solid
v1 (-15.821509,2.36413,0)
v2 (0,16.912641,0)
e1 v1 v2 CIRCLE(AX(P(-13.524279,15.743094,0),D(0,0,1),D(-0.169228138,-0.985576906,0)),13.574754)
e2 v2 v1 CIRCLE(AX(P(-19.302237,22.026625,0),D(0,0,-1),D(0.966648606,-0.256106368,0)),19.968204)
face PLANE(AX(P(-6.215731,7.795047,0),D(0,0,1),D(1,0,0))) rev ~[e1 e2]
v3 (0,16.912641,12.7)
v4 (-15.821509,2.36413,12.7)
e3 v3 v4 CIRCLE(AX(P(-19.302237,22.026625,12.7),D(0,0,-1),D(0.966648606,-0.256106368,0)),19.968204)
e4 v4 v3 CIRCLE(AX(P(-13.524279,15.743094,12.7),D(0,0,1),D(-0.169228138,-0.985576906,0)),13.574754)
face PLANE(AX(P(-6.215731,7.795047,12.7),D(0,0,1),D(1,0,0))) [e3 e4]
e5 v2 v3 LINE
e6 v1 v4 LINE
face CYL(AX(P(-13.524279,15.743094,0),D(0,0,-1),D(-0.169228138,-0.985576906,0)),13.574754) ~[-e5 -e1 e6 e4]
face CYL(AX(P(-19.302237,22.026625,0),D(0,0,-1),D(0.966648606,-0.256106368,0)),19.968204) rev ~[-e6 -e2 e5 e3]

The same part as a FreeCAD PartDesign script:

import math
import FreeCAD as App
import Part
import Sketcher

V = App.Vector
Q = App.Units.Quantity

doc = App.newDocument("Part")
params = doc.addObject("Spreadsheet::Sheet", "Params")
for row, (alias, value) in enumerate([
    ("pad1_length", "0.5 in"),
], start=1):
    params.set(f"A{row}", alias)
    params.set(f"B{row}", "=" + value)
    params.setAlias(f"B{row}", alias)

body = doc.addObject("PartDesign::Body", "Body")

# Sketch on XY plane
sketch1 = body.newObject("Sketcher::SketchObject", "Sketch")
sketch1.AttachmentSupport = (doc.getObject("XY_Plane"), [""])
sketch1.MapMode = "FlatFace"
sketch1.addGeometry([
    Part.ArcOfCircle(Part.Circle(V(-19, 22, 0), V(0, 0, 1), 20), math.radians(-80), math.radians(-15)),
    Part.ArcOfCircle(Part.Circle(V(-14, 16, 0), V(0, 0, 1), 14), math.radians(-100), math.radians(5)),
], False)
sketch1.addConstraint([
    Sketcher.Constraint("Coincident", 0, 1, 1, 1),
    Sketcher.Constraint("Coincident", 1, 2, 0, 2),
    Sketcher.Constraint("PointOnObject", 1, 2, -2),
    Sketcher.Constraint("Radius", 0, Q("19.968204 mm")),
    Sketcher.Constraint("Radius", 1, Q("13.574754 mm")),
    Sketcher.Constraint("DistanceX", 1, 3, -1, 1, Q("13.524279 mm")),
    Sketcher.Constraint("DistanceX", 0, 1, -1, 1, Q("15.821509 mm")),
    Sketcher.Constraint("DistanceY", -1, 1, 0, 1, Q("2.36413 mm")),
])
pad1 = body.newObject("PartDesign::Pad", "Pad")
pad1.Profile = sketch1
pad1.setExpression("Length", "Params.pad1_length")

doc.recompute()
